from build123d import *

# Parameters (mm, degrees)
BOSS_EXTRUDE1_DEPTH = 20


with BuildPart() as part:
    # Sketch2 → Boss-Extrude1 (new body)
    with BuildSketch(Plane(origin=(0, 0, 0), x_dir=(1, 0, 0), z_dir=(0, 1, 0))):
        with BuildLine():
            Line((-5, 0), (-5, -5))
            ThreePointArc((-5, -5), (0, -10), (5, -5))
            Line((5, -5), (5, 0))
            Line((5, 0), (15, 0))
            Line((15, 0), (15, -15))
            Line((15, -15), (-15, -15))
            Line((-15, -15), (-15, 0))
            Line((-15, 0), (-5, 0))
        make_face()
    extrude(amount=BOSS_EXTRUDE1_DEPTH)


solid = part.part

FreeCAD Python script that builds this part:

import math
import FreeCAD as App
import Part
import Sketcher

V = App.Vector

doc = App.newDocument("Part")
params = doc.addObject("Spreadsheet::Sheet", "Params")
for row, (alias, value) in enumerate([
    ("sketch1_radius", "5 mm"),
    ("sketch1_width", "10 mm"),
    ("sketch1_height", "5 mm"),
    ("sketch1_height2", "15 mm"),
    ("pad1_length", "20 mm"),
], start=1):
    params.set(f"A{row}", alias)
    params.set(f"B{row}", "=" + value)
    params.setAlias(f"B{row}", alias)

body = doc.addObject("PartDesign::Body", "Body")

sketch1 = body.newObject("Sketcher::SketchObject", "Sketch")
sketch1.AttachmentSupport = (doc.getObject("XZ_Plane"), [""])
sketch1.MapMode = "FlatFace"
sketch1.addGeometry([
    Part.LineSegment(V(-5, 5, 0), V(-5, 0, 0)),
    Part.LineSegment(V(-5, 0, 0), V(-15, 0, 0)),
    Part.LineSegment(V(-15, 0, 0), V(-15, 15, 0)),
    Part.LineSegment(V(-15, 15, 0), V(15, 15, 0)),
    Part.LineSegment(V(15, 15, 0), V(15, 0, 0)),
    Part.LineSegment(V(15, 0, 0), V(5, 0, 0)),
    Part.LineSegment(V(5, 0, 0), V(5, 5, 0)),
    Part.ArcOfCircle(Part.Circle(V(0, 5, 0), V(0, 0, 1), 5), math.radians(0), math.radians(180)),
], False)
sketch1.addConstraint([
    Sketcher.Constraint("Coincident", 0, 2, 1, 1),
    Sketcher.Constraint("Coincident", 1, 2, 2, 1),
    Sketcher.Constraint("Coincident", 2, 2, 3, 1),
    Sketcher.Constraint("Coincident", 3, 2, 4, 1),
    Sketcher.Constraint("Coincident", 4, 2, 5, 1),
    Sketcher.Constraint("Coincident", 5, 2, 6, 1),
    Sketcher.Constraint("Tangent", 6, 2, 7, 1),
    Sketcher.Constraint("Tangent", 7, 2, 0, 1),
    Sketcher.Constraint("Vertical", 0),
    Sketcher.Constraint("Horizontal", 1),
    Sketcher.Constraint("Vertical", 2),
    Sketcher.Constraint("Horizontal", 3),
    Sketcher.Constraint("Vertical", 4),
    Sketcher.Constraint("Horizontal", 5),
    Sketcher.Constraint("Vertical", 6),
    Sketcher.Constraint("Symmetric", 1, 2, 4, 2, -1, 1),
    Sketcher.Constraint("Symmetric", 0, 2, 5, 2, -2),
    Sketcher.Constraint("Radius", 7, 5.0),
    Sketcher.Constraint("DistanceX", 1, 2, 1, 1, 10.0),
    Sketcher.Constraint("DistanceY", 0, 2, 0, 1, 5.0),
    Sketcher.Constraint("DistanceY", 2, 1, 2, 2, 15.0),
])
sketch1.setExpression("Constraints[17]", "Params.sketch1_radius")
sketch1.setExpression("Constraints[18]", "Params.sketch1_width")
sketch1.setExpression("Constraints[19]", "Params.sketch1_height")
sketch1.setExpression("Constraints[20]", "Params.sketch1_height2")
pad1 = body.newObject("PartDesign::Pad", "Pad")
pad1.Profile = sketch1
pad1.setExpression("Length", "Params.pad1_length")
pad1.Reversed = True

doc.recompute()
